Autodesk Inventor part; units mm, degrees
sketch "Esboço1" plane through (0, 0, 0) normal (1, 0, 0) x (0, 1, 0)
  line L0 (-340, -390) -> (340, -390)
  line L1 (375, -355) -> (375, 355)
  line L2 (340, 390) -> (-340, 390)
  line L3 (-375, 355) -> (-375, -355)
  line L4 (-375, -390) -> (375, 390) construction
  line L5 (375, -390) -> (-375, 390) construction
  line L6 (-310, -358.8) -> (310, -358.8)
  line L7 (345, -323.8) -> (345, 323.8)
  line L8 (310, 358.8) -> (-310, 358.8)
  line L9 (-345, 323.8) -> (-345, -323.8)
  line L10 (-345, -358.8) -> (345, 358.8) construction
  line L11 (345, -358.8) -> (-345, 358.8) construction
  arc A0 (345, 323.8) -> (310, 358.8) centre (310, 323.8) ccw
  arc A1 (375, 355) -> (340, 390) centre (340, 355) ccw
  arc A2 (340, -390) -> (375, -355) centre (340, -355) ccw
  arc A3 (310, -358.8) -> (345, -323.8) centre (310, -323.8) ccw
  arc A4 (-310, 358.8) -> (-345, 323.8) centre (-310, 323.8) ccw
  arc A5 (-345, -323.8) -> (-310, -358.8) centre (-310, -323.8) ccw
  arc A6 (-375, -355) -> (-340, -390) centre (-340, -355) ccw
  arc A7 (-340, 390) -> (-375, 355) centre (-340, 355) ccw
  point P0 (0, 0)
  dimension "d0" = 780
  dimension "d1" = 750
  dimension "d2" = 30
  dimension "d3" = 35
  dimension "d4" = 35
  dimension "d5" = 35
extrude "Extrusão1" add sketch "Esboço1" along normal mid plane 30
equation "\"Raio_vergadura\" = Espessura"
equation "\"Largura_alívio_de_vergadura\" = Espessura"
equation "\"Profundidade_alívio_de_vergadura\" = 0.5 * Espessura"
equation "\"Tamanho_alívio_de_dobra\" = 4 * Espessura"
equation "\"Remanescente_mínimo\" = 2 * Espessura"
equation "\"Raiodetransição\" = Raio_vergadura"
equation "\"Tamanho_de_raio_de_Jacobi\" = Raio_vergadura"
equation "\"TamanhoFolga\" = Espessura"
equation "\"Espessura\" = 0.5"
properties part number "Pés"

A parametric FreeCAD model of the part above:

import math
import FreeCAD as App
import Part
import Sketcher
from FreeCAD import Vector

doc = App.newDocument("Part")
params = doc.addObject("Spreadsheet::Sheet", "Params")
for row, (alias, value) in enumerate([
    ("sketch1_radius", "35 mm"),
    ("sketch1_width", "680 mm"),
    ("sketch1_height", "710 mm"),
    ("sketch1_height2", "647.6 mm"),
    ("pad1_length", "30 mm"),
], start=1):
    params.set(f"A{row}", alias)
    params.set(f"B{row}", "=" + value)
    params.setAlias(f"B{row}", alias)

body = doc.addObject("PartDesign::Body", "Body")

# Sketch on YZ plane
sketch1 = body.newObject("Sketcher::SketchObject", "Sketch")
sketch1.AttachmentSupport = (doc.getObject("YZ_Plane"), [""])
sketch1.MapMode = "FlatFace"
sketch1.addGeometry([
    Part.ArcOfCircle(Part.Circle(Vector(-340, -355, 0), Vector(0, 0, 1), 35), math.radians(180), math.radians(270)),  # 0
    Part.LineSegment(Vector(-340, -390, 0), Vector(340, -390, 0)),  # 1
    Part.ArcOfCircle(Part.Circle(Vector(340, -355, 0), Vector(0, 0, 1), 35), math.radians(-90), math.radians(0)),  # 2
    Part.LineSegment(Vector(375, -355, 0), Vector(375, 355, 0)),  # 3
    Part.ArcOfCircle(Part.Circle(Vector(340, 355, 0), Vector(0, 0, 1), 35), math.radians(0), math.radians(90)),  # 4
    Part.LineSegment(Vector(340, 390, 0), Vector(-340, 390, 0)),  # 5
    Part.ArcOfCircle(Part.Circle(Vector(-340, 355, 0), Vector(0, 0, 1), 35), math.radians(90), math.radians(180)),  # 6
    Part.LineSegment(Vector(-375, 355, 0), Vector(-375, -355, 0)),  # 7
    Part.LineSegment(Vector(310, -358.8, 0), Vector(-310, -358.8, 0)),  # 8
    Part.ArcOfCircle(Part.Circle(Vector(-310, -323.8, 0), Vector(0, 0, 1), 35), math.radians(180), math.radians(270)),  # 9
    Part.LineSegment(Vector(-345, -323.8, 0), Vector(-345, 323.8, 0)),  # 10
    Part.ArcOfCircle(Part.Circle(Vector(-310, 323.8, 0), Vector(0, 0, 1), 35), math.radians(90), math.radians(180)),  # 11
    Part.LineSegment(Vector(-310, 358.8, 0), Vector(310, 358.8, 0)),  # 12
    Part.ArcOfCircle(Part.Circle(Vector(310, 323.8, 0), Vector(0, 0, 1), 35), math.radians(0), math.radians(90)),  # 13
    Part.LineSegment(Vector(345, 323.8, 0), Vector(345, -323.8, 0)),  # 14
    Part.ArcOfCircle(Part.Circle(Vector(310, -323.8, 0), Vector(0, 0, 1), 35), math.radians(-90), math.radians(0)),  # 15
], False)
sketch1.addConstraint([
    Sketcher.Constraint("Tangent", 0, 2, 1, 1),
    Sketcher.Constraint("Tangent", 1, 2, 2, 1),
    Sketcher.Constraint("Tangent", 2, 2, 3, 1),
    Sketcher.Constraint("Tangent", 3, 2, 4, 1),
    Sketcher.Constraint("Tangent", 4, 2, 5, 1),
    Sketcher.Constraint("Tangent", 5, 2, 6, 1),
    Sketcher.Constraint("Tangent", 6, 2, 7, 1),
    Sketcher.Constraint("Tangent", 7, 2, 0, 1),
    Sketcher.Constraint("Tangent", 8, 2, 9, 2),
    Sketcher.Constraint("Tangent", 9, 1, 10, 1),
    Sketcher.Constraint("Tangent", 10, 2, 11, 2),
    Sketcher.Constraint("Tangent", 11, 1, 12, 1),
    Sketcher.Constraint("Tangent", 12, 2, 13, 2),
    Sketcher.Constraint("Tangent", 13, 1, 14, 1),
    Sketcher.Constraint("Tangent", 14, 2, 15, 2),
    Sketcher.Constraint("Tangent", 15, 1, 8, 1),
    Sketcher.Constraint("Horizontal", 1),
    Sketcher.Constraint("Vertical", 3),
    Sketcher.Constraint("Horizontal", 5),
    Sketcher.Constraint("Vertical", 7),
    Sketcher.Constraint("Horizontal", 8),
    Sketcher.Constraint("Vertical", 10),
    Sketcher.Constraint("Horizontal", 12),
    Sketcher.Constraint("Vertical", 14),
    Sketcher.Constraint("Equal", 0, 2),
    Sketcher.Constraint("Equal", 2, 4),
    Sketcher.Constraint("Equal", 4, 6),
    Sketcher.Constraint("Equal", 6, 9),
    Sketcher.Constraint("Equal", 9, 11),
    Sketcher.Constraint("Equal", 11, 13),
    Sketcher.Constraint("Equal", 13, 15),
    Sketcher.Constraint("Symmetric", 0, 3, 4, 3, -1, 1),
    Sketcher.Constraint("Symmetric", 9, 3, 13, 3, -1, 1),
    Sketcher.Constraint("Radius", 0, 35.0),
    Sketcher.Constraint("DistanceX", 0, 3, 9, 3, 30.0),
    Sketcher.Constraint("DistanceX", 1, 1, 1, 2, 680.0),
    Sketcher.Constraint("DistanceY", 3, 1, 3, 2, 710.0),
    Sketcher.Constraint("DistanceY", 10, 1, 10, 2, 647.6),
])
sketch1.setExpression("Constraints[33]", "Params.sketch1_radius")
sketch1.setExpression("Constraints[35]", "Params.sketch1_width")
sketch1.setExpression("Constraints[36]", "Params.sketch1_height")
sketch1.setExpression("Constraints[37]", "Params.sketch1_height2")
pad1 = body.newObject("PartDesign::Pad", "Pad")
pad1.Profile = sketch1
pad1.setExpression("Length", "Params.pad1_length")
pad1.Midplane = True

doc.recompute()
